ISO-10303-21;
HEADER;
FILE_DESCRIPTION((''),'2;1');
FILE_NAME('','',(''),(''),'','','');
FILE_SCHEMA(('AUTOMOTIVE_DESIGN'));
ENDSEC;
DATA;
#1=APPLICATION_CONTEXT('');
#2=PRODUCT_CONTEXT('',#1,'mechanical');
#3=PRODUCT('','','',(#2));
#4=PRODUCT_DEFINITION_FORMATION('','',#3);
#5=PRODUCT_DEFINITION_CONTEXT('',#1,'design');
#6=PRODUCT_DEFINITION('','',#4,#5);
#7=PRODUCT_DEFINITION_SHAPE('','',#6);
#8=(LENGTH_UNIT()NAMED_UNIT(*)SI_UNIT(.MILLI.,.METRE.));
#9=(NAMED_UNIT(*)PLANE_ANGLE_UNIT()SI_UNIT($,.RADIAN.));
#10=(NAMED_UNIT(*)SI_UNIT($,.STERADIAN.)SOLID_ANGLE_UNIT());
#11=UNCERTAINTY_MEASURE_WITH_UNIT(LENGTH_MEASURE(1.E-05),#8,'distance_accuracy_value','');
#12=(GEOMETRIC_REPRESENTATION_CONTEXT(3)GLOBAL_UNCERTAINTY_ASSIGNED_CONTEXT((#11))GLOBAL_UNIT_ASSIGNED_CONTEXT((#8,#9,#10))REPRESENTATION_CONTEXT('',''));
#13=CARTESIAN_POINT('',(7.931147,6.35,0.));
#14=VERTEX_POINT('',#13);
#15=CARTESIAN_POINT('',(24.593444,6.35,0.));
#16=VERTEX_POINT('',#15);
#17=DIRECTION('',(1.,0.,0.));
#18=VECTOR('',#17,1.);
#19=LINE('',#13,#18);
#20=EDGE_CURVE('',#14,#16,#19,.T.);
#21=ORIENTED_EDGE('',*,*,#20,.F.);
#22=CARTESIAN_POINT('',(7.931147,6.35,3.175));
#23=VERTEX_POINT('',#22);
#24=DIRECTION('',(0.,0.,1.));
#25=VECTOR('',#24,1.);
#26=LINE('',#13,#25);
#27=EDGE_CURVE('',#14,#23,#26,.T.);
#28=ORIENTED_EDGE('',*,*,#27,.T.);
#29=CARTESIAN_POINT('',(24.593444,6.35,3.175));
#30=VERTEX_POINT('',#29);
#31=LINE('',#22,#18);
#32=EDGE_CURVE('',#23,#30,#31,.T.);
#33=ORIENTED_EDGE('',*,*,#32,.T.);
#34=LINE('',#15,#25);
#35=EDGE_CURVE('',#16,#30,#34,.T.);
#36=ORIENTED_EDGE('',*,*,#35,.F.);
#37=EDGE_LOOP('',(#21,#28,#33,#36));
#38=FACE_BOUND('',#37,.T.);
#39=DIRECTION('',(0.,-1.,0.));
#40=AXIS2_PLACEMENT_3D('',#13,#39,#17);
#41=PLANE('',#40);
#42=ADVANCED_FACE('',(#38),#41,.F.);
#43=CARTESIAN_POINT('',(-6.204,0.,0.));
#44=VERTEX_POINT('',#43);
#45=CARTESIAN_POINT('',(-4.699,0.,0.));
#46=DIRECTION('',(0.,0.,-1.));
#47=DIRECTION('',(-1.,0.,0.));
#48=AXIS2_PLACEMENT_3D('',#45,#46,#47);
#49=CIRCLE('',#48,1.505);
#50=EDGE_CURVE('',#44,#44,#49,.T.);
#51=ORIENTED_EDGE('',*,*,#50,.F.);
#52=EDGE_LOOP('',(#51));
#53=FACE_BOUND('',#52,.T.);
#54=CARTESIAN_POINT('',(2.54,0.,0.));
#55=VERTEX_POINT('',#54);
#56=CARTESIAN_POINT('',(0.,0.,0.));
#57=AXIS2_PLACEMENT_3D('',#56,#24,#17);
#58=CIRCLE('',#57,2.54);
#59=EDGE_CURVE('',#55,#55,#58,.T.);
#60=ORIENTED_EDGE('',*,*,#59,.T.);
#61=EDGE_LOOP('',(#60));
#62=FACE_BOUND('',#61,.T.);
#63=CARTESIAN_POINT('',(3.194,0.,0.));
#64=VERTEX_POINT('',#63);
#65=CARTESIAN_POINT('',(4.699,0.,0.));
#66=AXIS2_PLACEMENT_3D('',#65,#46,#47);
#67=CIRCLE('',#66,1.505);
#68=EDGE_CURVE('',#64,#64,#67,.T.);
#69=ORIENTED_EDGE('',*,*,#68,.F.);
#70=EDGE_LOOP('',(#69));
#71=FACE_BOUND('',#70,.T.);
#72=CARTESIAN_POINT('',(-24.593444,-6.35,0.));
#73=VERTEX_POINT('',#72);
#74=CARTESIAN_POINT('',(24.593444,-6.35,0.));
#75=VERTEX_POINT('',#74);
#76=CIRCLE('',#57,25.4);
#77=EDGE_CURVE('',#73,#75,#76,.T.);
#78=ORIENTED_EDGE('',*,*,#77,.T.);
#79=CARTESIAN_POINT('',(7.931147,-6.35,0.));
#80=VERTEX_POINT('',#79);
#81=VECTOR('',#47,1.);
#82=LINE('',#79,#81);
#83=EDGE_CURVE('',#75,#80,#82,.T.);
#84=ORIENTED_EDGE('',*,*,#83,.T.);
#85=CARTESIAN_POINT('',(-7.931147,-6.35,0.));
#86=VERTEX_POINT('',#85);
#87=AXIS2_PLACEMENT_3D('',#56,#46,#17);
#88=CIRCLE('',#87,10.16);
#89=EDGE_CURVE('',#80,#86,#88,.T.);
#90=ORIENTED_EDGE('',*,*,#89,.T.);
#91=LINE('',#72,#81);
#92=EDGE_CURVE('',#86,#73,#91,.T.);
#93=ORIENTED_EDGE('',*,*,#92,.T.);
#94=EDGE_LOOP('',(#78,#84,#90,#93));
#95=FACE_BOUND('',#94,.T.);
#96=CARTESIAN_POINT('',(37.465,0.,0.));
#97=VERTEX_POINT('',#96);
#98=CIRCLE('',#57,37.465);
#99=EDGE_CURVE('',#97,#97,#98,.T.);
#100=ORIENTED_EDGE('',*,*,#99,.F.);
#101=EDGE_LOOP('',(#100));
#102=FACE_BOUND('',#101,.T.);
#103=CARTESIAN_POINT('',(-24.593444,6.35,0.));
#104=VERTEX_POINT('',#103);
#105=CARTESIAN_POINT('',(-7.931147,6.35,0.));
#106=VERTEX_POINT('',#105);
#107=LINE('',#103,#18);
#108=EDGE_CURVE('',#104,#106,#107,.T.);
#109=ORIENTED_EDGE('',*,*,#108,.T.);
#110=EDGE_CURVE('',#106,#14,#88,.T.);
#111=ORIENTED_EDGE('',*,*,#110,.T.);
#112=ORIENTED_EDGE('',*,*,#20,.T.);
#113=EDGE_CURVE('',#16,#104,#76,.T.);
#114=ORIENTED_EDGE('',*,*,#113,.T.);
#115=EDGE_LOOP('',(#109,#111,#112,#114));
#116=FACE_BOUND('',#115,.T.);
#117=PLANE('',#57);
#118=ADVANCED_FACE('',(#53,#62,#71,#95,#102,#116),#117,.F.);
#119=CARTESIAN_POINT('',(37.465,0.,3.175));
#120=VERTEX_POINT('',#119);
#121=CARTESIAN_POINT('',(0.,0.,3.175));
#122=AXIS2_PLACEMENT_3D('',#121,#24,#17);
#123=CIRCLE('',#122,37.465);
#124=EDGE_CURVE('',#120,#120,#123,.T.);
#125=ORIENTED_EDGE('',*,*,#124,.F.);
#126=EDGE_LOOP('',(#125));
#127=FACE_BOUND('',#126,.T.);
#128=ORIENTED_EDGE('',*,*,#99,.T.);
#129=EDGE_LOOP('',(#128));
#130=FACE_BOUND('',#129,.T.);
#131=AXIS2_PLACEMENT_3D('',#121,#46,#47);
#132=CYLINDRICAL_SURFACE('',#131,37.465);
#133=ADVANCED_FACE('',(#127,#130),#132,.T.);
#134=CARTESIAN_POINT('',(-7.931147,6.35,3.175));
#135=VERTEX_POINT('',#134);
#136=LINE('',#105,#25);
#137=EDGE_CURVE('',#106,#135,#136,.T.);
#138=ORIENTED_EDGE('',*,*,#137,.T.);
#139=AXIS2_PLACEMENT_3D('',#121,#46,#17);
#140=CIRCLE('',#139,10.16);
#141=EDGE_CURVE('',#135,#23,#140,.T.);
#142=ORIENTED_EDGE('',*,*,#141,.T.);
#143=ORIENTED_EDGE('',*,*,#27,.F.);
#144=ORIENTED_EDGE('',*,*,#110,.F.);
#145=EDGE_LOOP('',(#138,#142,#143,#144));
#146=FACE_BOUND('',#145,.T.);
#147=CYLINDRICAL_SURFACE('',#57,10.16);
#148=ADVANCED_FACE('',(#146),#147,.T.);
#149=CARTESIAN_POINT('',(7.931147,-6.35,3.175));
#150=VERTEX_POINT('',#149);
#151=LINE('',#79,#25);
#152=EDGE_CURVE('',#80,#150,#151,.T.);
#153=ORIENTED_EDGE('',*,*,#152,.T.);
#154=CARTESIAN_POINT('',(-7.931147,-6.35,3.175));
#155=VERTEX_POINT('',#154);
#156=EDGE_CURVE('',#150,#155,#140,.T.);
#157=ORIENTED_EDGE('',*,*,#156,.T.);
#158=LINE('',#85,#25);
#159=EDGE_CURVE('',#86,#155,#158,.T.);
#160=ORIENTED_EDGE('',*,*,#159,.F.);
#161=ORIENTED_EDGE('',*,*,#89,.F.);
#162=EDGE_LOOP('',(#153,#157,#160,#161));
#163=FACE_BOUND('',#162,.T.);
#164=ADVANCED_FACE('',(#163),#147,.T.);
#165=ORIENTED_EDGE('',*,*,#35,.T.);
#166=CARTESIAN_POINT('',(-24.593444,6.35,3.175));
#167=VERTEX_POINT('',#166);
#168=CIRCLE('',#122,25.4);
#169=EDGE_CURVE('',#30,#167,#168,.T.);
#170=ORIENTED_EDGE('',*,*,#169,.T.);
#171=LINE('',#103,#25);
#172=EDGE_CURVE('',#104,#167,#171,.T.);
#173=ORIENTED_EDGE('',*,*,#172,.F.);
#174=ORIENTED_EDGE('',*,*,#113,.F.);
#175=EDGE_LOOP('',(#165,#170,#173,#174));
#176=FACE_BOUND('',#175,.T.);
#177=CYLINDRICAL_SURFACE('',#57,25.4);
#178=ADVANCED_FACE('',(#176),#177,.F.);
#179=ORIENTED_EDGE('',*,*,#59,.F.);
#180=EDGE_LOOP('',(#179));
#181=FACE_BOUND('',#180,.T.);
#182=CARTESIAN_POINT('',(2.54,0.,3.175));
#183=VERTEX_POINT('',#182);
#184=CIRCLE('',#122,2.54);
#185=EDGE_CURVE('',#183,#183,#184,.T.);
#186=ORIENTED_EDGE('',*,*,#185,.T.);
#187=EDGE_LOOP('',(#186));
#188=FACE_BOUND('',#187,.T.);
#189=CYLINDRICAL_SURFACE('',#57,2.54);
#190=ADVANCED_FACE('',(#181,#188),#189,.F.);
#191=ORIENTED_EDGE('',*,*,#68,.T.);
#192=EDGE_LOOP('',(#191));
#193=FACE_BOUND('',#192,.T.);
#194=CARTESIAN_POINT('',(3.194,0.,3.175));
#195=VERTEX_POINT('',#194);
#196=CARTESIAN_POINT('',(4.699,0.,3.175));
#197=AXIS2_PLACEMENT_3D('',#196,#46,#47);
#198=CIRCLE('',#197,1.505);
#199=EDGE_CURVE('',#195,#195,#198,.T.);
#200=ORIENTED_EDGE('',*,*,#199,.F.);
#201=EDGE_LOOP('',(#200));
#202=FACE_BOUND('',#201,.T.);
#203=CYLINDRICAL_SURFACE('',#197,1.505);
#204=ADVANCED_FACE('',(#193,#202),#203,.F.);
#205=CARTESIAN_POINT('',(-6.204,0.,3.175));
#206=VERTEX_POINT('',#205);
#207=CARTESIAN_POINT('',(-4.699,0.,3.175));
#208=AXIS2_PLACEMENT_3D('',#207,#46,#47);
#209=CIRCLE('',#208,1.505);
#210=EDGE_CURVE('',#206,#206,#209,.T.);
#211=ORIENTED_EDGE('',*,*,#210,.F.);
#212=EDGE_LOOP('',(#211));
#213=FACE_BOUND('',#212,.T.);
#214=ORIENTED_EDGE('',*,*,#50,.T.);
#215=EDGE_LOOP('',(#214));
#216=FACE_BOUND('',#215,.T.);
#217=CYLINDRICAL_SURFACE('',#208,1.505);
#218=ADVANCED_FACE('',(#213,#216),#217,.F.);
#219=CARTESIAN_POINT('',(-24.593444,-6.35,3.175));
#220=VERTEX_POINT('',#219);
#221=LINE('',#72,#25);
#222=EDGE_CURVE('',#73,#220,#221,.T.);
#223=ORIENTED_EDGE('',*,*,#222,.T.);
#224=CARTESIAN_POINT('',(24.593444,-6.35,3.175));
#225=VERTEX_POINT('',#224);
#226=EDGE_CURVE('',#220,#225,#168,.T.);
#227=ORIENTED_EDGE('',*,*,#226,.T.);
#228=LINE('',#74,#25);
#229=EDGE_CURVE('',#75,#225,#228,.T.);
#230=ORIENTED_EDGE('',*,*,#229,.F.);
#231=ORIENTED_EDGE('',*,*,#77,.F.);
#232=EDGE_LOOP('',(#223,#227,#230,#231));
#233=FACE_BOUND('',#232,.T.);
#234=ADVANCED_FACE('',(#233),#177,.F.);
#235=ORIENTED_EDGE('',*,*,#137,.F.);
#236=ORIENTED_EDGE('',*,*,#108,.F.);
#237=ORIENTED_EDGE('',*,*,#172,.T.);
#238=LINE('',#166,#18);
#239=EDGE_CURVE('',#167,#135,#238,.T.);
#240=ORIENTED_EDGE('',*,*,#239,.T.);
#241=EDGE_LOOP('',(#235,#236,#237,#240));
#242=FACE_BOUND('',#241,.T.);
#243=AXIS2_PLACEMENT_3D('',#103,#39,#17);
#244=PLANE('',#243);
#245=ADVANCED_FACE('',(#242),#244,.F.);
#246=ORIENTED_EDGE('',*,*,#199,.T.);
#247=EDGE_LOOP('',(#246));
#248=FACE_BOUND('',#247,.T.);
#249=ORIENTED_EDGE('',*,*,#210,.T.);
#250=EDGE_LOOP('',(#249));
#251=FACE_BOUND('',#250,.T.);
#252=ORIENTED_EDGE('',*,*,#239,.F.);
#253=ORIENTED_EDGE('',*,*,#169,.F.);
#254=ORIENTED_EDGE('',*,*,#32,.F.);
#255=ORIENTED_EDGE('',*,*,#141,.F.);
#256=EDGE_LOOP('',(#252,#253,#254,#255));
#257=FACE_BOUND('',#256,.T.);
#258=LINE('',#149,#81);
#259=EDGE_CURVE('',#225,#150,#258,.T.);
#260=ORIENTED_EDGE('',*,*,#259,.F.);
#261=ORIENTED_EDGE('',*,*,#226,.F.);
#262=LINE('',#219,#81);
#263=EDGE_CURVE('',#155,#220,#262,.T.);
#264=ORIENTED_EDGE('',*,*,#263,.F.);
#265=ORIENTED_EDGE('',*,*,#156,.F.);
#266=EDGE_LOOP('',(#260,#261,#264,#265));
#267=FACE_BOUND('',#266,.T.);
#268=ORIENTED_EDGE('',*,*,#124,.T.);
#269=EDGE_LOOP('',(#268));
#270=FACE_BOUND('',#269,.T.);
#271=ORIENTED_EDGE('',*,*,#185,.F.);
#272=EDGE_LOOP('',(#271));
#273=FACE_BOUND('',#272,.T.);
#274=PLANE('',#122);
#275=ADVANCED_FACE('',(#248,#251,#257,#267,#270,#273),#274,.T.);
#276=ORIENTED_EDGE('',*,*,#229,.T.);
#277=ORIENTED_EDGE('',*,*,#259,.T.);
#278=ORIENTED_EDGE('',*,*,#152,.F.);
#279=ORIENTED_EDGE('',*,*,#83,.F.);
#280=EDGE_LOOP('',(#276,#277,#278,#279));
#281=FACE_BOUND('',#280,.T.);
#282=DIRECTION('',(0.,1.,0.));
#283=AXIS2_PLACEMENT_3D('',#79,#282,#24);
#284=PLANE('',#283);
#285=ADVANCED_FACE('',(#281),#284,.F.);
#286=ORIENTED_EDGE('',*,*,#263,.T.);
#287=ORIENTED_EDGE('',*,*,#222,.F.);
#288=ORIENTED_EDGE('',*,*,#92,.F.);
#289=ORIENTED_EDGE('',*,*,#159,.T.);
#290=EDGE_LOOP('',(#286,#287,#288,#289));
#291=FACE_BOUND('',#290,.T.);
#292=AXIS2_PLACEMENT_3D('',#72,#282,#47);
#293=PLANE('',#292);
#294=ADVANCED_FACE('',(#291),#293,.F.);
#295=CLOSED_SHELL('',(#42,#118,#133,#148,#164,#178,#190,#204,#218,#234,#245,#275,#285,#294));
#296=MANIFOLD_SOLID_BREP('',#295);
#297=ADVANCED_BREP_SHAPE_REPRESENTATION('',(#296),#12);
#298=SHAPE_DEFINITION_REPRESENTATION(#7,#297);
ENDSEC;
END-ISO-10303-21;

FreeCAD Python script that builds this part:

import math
import FreeCAD as App
import Part
import Sketcher

V = App.Vector
Q = App.Units.Quantity

doc = App.newDocument("Part")
body = doc.addObject("PartDesign::Body", "Body")

# Sketch on XY plane
sketch1 = body.newObject("Sketcher::SketchObject", "Sketch")
sketch1.AttachmentSupport = (doc.getObject("XY_Plane"), [""])
sketch1.MapMode = "FlatFace"
sketch1.addGeometry(Part.Circle(V(0, 0, 0), V(0, 0, 1), 37), False)
sketch1.addConstraint([
    Sketcher.Constraint("Coincident", 0, 3, -1, 1),
    Sketcher.Constraint("Diameter", 0, Q("2.95 in")),
])
pad1 = body.newObject("PartDesign::Pad", "Pad")
pad1.Profile = sketch1
pad1.Length = Q("0.125 in")

# Sketch on XY plane
sketch2 = body.newObject("Sketcher::SketchObject", "Sketch001")
sketch2.AttachmentSupport = (doc.getObject("XY_Plane"), [""])
sketch2.MapMode = "FlatFace"
sketch2.AttachmentOffset = App.Placement(V(0, 0, 0.125 * 25.4), App.Rotation())
sketch2.addGeometry([
    Part.LineSegment(V(-8, -6, 0), V(-25, -6, 0)),  # 0
    Part.ArcOfCircle(Part.Circle(V(0, 0, 0), V(0, 0, 1), 25), math.radians(-166), math.radians(-14)),  # 1
    Part.LineSegment(V(25, -6, 0), V(8, -6, 0)),  # 2
    Part.ArcOfCircle(Part.Circle(V(0, 0, 0), V(0, 0, 1), 10), math.radians(-141), math.radians(-39)),  # 3
    Part.LineSegment(V(8, 6, 0), V(25, 6, 0)),  # 4
    Part.ArcOfCircle(Part.Circle(V(0, 0, 0), V(0, 0, 1), 25), math.radians(14), math.radians(166)),  # 5
    Part.LineSegment(V(-25, 6, 0), V(-8, 6, 0)),  # 6
    Part.ArcOfCircle(Part.Circle(V(0, 0, 0), V(0, 0, 1), 10), math.radians(39), math.radians(141)),  # 7
], False)
sketch2.addConstraint([
    Sketcher.Constraint("Coincident", 0, 2, 1, 1),
    Sketcher.Constraint("Coincident", 1, 2, 2, 1),
    Sketcher.Constraint("Coincident", 2, 2, 3, 2),
    Sketcher.Constraint("Coincident", 3, 1, 0, 1),
    Sketcher.Constraint("Coincident", 4, 2, 5, 1),
    Sketcher.Constraint("Coincident", 5, 2, 6, 1),
    Sketcher.Constraint("Coincident", 6, 2, 7, 2),
    Sketcher.Constraint("Coincident", 7, 1, 4, 1),
    Sketcher.Constraint("Horizontal", 0),
    Sketcher.Constraint("Horizontal", 2),
    Sketcher.Constraint("Horizontal", 4),
    Sketcher.Constraint("Horizontal", 6),
    Sketcher.Constraint("Coincident", 1, 3, -1, 1),
    Sketcher.Constraint("Coincident", 3, 3, -1, 1),
    Sketcher.Constraint("Coincident", 5, 3, -1, 1),
    Sketcher.Constraint("Coincident", 7, 3, -1, 1),
    Sketcher.Constraint("Equal", 1, 5),
    Sketcher.Constraint("Equal", 3, 7),
    Sketcher.Constraint("Horizontal", 0, 2, 1, 2),
    Sketcher.Constraint("Horizontal", 4, 2, 5, 2),
    Sketcher.Constraint("Vertical", 1, 2, 4, 2),
    Sketcher.Constraint("Radius", 1, Q("1 in")),
    Sketcher.Constraint("Radius", 3, Q("0.4 in")),
    Sketcher.Constraint("DistanceY", 1, 2, 4, 2, Q("0.5 in")),
])
pocket1 = body.newObject("PartDesign::Pocket", "Pocket")
pocket1.Profile = sketch2
pocket1.Type = "ThroughAll"

# Sketch on XY plane
sketch3 = body.newObject("Sketcher::SketchObject", "Sketch002")
sketch3.AttachmentSupport = (doc.getObject("XY_Plane"), [""])
sketch3.MapMode = "FlatFace"
sketch3.AttachmentOffset = App.Placement(V(0, 0, 0.125 * 25.4), App.Rotation())
sketch3.addGeometry(Part.Circle(V(0, 0, 0), V(0, 0, 1), 2.5), False)
sketch3.addConstraint([
    Sketcher.Constraint("Coincident", 0, 3, -1, 1),
    Sketcher.Constraint("Diameter", 0, Q("0.2 in")),
])
pocket2 = body.newObject("PartDesign::Pocket", "Pocket001")
pocket2.Profile = sketch3
pocket2.Type = "ThroughAll"

# Sketch on XY plane
sketch4 = body.newObject("Sketcher::SketchObject", "Sketch003")
sketch4.AttachmentSupport = (doc.getObject("XY_Plane"), [""])
sketch4.MapMode = "FlatFace"
sketch4.addGeometry([
    Part.Circle(V(4.7, 0, 0), V(0, 0, 1), 1.5),
    Part.Circle(V(-4.7, 0, 0), V(0, 0, 1), 1.5),
], False)
sketch4.addConstraint([
    Sketcher.Constraint("Equal", 0, 1),
    Sketcher.Constraint("Symmetric", 0, 3, 1, 3, -1, 1),
    Sketcher.Constraint("PointOnObject", 0, 3, -1),
    Sketcher.Constraint("Diameter", 0, Q("3.01 mm")),
    Sketcher.Constraint("DistanceX", 1, 3, 0, 3, Q("0.37 in")),
])
pocket3 = body.newObject("PartDesign::Pocket", "Pocket002")
pocket3.Profile = sketch4
pocket3.Type = "ThroughAll"
pocket3.Reversed = True

doc.recompute()
